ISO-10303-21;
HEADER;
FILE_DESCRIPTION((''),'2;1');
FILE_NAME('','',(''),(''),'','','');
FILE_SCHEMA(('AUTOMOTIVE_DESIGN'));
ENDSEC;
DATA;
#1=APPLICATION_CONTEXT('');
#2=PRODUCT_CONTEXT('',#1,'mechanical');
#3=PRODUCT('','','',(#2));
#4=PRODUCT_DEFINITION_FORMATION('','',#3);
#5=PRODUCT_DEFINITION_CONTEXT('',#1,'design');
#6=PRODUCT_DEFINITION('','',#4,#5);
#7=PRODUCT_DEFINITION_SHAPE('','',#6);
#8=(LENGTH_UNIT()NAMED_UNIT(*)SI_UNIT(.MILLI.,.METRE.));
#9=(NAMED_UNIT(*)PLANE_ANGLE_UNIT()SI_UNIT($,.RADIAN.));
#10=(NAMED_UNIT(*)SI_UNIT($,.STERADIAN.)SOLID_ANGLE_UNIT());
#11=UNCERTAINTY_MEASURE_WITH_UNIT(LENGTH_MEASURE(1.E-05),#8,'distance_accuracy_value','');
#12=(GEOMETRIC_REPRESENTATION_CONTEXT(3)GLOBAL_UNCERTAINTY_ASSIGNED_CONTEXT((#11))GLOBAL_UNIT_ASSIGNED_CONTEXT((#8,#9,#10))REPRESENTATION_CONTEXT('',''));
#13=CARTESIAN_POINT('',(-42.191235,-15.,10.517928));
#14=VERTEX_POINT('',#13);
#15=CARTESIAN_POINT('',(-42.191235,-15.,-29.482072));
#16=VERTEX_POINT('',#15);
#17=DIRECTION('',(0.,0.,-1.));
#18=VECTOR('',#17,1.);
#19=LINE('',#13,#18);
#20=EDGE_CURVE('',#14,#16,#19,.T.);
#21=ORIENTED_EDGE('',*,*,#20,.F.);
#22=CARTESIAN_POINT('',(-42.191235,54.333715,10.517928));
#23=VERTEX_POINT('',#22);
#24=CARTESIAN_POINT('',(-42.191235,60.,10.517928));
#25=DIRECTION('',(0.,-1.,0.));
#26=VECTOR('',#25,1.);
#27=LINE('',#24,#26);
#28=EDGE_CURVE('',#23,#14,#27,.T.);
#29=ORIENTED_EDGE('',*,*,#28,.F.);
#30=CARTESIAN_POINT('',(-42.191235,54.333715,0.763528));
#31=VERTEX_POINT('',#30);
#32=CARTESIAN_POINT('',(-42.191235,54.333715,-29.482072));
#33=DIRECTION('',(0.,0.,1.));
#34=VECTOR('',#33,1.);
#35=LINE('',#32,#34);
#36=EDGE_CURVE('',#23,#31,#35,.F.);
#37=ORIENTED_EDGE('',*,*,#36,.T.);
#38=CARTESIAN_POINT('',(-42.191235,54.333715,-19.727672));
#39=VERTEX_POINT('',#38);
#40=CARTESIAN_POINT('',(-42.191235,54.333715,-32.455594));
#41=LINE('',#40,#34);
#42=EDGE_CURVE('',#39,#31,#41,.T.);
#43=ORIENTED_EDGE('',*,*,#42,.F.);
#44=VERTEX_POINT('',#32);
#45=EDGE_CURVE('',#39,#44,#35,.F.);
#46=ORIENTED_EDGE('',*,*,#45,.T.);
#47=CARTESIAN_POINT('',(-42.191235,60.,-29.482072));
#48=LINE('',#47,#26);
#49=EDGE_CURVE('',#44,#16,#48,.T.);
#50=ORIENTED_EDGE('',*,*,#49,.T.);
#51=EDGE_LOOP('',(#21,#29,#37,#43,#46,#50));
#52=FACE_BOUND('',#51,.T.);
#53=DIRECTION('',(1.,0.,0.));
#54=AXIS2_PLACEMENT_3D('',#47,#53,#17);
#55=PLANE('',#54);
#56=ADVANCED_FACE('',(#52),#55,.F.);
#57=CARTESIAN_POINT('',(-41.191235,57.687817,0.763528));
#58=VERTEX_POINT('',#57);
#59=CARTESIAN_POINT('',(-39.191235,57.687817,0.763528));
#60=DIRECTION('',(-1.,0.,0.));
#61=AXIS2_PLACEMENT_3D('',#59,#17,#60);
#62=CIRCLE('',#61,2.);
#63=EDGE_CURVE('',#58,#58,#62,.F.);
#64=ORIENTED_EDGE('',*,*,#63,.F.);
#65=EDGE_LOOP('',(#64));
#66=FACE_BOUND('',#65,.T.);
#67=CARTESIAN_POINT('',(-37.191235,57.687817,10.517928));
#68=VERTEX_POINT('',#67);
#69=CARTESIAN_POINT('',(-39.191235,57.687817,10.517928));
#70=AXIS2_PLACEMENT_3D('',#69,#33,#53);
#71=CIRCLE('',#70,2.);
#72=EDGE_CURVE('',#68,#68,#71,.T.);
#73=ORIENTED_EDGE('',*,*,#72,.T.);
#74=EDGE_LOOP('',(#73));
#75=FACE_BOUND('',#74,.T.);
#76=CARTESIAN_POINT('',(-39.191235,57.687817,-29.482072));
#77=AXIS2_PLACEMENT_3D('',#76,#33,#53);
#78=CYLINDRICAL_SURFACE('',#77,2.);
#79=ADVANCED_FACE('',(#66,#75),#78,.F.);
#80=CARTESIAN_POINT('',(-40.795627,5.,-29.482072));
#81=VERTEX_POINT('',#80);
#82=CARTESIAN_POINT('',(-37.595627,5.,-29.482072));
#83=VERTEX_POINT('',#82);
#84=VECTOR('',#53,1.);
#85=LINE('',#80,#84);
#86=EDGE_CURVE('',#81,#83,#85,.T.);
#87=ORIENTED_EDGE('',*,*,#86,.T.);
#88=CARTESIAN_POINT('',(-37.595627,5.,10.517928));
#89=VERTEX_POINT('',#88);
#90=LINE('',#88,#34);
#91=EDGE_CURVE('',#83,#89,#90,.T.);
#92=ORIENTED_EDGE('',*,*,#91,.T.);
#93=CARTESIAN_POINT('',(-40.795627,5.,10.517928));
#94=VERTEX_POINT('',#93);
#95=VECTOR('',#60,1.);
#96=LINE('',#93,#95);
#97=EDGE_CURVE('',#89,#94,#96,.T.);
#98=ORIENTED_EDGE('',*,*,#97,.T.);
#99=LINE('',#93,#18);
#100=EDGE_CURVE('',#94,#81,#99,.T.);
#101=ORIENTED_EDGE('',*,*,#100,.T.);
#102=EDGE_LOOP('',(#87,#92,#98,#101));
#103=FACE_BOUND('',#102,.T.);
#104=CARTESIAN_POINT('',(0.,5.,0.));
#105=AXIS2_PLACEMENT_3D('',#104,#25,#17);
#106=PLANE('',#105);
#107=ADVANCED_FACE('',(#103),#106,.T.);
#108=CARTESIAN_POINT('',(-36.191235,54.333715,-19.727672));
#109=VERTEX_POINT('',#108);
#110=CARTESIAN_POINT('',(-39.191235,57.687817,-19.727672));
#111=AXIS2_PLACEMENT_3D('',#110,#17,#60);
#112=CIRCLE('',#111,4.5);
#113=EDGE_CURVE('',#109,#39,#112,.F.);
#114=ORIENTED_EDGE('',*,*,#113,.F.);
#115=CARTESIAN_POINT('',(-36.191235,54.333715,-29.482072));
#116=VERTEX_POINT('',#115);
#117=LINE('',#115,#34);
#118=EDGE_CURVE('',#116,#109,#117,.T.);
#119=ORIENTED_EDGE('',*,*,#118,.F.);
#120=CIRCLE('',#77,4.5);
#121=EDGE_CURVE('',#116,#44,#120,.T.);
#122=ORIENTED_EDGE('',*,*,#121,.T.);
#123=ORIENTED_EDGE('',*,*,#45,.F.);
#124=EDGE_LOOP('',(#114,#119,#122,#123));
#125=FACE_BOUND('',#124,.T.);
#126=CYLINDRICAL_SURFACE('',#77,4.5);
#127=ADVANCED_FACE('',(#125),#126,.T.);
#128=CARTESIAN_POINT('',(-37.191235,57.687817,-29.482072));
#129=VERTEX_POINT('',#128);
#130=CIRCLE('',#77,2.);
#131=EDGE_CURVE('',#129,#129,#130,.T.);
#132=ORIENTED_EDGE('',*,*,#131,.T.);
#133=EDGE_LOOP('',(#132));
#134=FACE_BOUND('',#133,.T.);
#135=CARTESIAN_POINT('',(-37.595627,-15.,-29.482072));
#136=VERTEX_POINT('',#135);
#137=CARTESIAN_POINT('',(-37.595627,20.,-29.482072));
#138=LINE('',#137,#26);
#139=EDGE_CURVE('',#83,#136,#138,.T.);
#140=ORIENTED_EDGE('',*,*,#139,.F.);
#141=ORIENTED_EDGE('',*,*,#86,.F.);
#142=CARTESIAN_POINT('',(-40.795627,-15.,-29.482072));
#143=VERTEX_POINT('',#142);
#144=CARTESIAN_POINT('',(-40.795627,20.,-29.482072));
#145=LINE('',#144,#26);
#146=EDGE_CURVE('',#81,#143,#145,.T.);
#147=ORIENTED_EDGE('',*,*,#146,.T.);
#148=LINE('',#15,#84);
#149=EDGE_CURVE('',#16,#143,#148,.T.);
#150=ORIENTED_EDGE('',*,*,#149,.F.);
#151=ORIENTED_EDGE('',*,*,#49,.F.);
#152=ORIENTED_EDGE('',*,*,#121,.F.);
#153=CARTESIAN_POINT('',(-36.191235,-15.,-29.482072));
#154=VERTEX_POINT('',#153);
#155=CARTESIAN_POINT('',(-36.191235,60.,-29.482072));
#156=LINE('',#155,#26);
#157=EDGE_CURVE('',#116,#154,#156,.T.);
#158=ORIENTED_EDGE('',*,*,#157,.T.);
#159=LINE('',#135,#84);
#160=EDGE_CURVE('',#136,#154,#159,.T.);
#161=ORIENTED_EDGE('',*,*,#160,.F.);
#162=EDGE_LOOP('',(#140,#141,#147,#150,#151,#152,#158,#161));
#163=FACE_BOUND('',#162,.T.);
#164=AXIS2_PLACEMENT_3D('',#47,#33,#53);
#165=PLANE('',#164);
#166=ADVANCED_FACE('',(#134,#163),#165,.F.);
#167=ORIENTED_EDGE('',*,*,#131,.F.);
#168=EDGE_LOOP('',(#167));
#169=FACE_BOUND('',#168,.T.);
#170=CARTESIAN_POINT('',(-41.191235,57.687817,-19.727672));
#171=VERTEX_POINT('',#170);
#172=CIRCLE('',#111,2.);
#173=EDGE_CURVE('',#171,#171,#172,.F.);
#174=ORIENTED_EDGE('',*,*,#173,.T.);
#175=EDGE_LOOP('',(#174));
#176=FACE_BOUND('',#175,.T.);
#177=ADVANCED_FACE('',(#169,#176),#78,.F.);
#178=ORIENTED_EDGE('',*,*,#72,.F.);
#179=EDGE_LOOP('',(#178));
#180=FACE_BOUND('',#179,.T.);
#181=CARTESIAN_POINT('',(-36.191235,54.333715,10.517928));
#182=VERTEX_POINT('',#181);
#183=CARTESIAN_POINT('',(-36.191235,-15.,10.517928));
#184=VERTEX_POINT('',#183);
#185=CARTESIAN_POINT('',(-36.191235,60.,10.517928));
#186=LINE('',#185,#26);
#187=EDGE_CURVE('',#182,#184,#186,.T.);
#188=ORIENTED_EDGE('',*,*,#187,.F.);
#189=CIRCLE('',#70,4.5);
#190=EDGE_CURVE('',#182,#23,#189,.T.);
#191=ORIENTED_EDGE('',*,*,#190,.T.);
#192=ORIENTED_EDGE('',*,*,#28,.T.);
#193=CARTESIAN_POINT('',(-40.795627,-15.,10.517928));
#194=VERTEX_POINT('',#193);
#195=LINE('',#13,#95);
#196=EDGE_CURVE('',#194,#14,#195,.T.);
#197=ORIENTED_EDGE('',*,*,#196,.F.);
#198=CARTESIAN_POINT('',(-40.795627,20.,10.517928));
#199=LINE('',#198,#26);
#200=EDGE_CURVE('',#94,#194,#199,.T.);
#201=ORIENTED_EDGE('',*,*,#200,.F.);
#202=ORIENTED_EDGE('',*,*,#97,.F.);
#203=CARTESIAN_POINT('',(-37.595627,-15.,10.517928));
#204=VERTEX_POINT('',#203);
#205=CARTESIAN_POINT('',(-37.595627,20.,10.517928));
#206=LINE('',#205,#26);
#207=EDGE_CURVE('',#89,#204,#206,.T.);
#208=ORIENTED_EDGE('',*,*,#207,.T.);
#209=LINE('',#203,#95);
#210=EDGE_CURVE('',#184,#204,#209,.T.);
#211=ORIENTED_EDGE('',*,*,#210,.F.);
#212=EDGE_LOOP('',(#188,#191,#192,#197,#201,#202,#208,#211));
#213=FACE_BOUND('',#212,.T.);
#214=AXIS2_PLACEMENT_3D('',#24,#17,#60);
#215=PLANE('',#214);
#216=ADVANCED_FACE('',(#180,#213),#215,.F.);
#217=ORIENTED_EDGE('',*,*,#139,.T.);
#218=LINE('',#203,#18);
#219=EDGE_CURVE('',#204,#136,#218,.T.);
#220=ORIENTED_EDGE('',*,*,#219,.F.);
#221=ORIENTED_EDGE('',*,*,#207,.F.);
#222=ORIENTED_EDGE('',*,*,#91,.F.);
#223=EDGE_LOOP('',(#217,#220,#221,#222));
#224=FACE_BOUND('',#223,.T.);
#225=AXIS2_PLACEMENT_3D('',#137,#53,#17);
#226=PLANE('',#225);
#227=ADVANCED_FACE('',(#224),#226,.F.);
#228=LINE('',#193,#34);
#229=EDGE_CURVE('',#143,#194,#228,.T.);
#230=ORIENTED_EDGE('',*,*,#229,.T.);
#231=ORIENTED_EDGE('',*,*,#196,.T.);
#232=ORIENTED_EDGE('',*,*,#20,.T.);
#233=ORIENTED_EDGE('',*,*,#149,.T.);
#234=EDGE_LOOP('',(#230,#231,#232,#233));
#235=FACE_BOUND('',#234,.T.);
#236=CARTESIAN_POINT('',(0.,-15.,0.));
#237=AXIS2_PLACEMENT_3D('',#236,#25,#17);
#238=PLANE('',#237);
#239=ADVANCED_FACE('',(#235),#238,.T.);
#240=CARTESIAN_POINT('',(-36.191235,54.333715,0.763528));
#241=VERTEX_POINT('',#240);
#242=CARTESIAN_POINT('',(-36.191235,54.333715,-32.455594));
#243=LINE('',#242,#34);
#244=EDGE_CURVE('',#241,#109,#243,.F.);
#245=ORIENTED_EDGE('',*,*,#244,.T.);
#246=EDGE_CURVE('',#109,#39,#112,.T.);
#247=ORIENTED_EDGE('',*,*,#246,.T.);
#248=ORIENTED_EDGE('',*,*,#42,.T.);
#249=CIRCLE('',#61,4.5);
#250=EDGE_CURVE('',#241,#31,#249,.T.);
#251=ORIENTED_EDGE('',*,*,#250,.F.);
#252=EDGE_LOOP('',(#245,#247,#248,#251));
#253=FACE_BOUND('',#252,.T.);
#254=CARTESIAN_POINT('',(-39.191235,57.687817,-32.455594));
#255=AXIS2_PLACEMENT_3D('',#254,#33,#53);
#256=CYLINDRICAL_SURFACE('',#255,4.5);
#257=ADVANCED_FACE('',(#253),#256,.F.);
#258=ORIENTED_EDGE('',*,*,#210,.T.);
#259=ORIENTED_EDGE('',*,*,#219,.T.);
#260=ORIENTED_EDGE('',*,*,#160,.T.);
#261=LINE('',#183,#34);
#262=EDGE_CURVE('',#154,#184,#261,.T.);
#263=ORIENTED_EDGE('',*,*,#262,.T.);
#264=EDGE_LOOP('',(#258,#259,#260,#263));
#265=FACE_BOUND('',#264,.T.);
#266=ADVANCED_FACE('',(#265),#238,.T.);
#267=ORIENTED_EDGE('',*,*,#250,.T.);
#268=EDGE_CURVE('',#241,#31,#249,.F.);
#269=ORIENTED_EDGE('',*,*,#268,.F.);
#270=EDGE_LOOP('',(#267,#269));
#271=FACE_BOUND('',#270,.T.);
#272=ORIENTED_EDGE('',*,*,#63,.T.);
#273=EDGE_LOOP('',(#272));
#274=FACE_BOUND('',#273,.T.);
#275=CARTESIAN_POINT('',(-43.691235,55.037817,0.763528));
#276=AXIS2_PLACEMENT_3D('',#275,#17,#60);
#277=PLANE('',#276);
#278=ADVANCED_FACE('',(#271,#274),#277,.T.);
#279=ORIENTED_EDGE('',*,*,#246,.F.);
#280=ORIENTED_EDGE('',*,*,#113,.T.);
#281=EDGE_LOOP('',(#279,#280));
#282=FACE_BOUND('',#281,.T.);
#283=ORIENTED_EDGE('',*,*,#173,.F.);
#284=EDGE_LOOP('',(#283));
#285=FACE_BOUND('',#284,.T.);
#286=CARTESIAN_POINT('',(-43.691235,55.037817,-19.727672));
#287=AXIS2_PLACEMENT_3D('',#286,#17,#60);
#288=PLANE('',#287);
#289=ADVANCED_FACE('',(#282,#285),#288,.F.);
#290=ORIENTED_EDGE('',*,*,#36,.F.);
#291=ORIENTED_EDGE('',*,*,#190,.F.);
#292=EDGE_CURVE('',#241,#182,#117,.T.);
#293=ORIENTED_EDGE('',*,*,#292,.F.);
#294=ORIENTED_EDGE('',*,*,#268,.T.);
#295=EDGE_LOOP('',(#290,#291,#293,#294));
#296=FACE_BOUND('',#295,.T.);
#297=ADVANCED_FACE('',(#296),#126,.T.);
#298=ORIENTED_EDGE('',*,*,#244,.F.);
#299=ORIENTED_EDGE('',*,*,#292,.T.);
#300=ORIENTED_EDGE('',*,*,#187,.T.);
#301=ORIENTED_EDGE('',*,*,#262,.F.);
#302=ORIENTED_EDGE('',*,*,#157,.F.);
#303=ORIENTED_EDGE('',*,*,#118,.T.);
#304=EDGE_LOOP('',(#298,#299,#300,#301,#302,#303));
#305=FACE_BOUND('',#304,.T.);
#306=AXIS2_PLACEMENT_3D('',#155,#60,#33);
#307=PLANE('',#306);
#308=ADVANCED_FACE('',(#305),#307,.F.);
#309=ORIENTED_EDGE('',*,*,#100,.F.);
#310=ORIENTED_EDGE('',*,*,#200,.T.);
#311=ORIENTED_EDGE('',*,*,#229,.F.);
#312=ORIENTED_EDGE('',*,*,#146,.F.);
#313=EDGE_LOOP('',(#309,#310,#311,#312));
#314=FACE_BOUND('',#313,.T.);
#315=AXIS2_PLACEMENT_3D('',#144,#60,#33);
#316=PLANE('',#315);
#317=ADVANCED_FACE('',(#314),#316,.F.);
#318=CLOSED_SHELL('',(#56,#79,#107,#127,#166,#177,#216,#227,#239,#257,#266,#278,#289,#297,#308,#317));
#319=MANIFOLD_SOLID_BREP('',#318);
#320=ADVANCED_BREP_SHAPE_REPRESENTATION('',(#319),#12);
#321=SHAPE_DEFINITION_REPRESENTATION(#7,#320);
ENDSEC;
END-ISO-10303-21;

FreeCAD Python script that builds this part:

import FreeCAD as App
import Part
import Sketcher
Q = App.Units.Quantity

doc = App.newDocument("Part")
body = doc.addObject("PartDesign::Body", "Body")

# Sketch on XZ plane
sketch1 = body.newObject("Sketcher::SketchObject", "Sketch")
sketch1.AttachmentSupport = (doc.getObject("XZ_Plane"), [""])
sketch1.MapMode = "FlatFace"
sketch1.addGeometry([
    Part.LineSegment(App.Vector(-42, -29, 0), App.Vector(-42, 11, 0)),
    Part.LineSegment(App.Vector(-42, 11, 0), App.Vector(-36, 11, 0)),
    Part.LineSegment(App.Vector(-36, 11, 0), App.Vector(-36, -29, 0)),
    Part.LineSegment(App.Vector(-36, -29, 0), App.Vector(-42, -29, 0)),
], False)
sketch1.addConstraint([
    Sketcher.Constraint("Coincident", 0, 2, 1, 1),
    Sketcher.Constraint("Coincident", 1, 2, 2, 1),
    Sketcher.Constraint("Coincident", 2, 2, 3, 1),
    Sketcher.Constraint("Coincident", 3, 2, 0, 1),
    Sketcher.Constraint("Vertical", 0),
    Sketcher.Constraint("Horizontal", 1),
    Sketcher.Constraint("Vertical", 2),
    Sketcher.Constraint("Horizontal", 3),
    Sketcher.Constraint("DistanceX", 1, 1, 1, 2, Q("6 mm")),
    Sketcher.Constraint("DistanceY", 0, 1, 0, 2, Q("40 mm")),
    Sketcher.Constraint("DistanceY", -1, 1, 0, 2, Q("10.517928 mm")),
    Sketcher.Constraint("DistanceX", 0, 2, -1, 1, Q("42.191235 mm")),
])
pad1 = body.newObject("PartDesign::Pad", "Pad")
pad1.Profile = sketch1
pad1.Length = 60
pad1.Reversed = True

# Sketch on XZ plane
sketch2 = body.newObject("Sketcher::SketchObject", "Sketch001")
sketch2.AttachmentSupport = (doc.getObject("XZ_Plane"), [""])
sketch2.MapMode = "FlatFace"
sketch2.addGeometry([
    Part.LineSegment(App.Vector(-40.8, 10.5, 0), App.Vector(-40.8, -29.5, 0)),
    Part.LineSegment(App.Vector(-40.8, -29.5, 0), App.Vector(-37.6, -29.5, 0)),
    Part.LineSegment(App.Vector(-37.6, -29.5, 0), App.Vector(-37.6, 10.5, 0)),
    Part.LineSegment(App.Vector(-37.6, 10.5, 0), App.Vector(-40.8, 10.5, 0)),
], False)
sketch2.addConstraint([
    Sketcher.Constraint("Coincident", 0, 2, 1, 1),
    Sketcher.Constraint("Coincident", 1, 2, 2, 1),
    Sketcher.Constraint("Coincident", 2, 2, 3, 1),
    Sketcher.Constraint("Coincident", 3, 2, 0, 1),
    Sketcher.Constraint("Vertical", 0),
    Sketcher.Constraint("Horizontal", 1),
    Sketcher.Constraint("Vertical", 2),
    Sketcher.Constraint("Horizontal", 3),
    Sketcher.Constraint("DistanceY", 0, 2, 0, 1, Q("40 mm")),
    Sketcher.Constraint("DistanceX", 1, 1, 1, 2, Q("3.2 mm")),
    Sketcher.Constraint("DistanceY", 0, 2, -1, 1, Q("29.482072 mm")),
    Sketcher.Constraint("DistanceX", 0, 2, -1, 1, Q("40.795627 mm")),
])
pocket1 = body.newObject("PartDesign::Pocket", "Pocket")
pocket1.Profile = sketch2
pocket1.Length = 20

# Sketch on XY plane
sketch3 = body.newObject("Sketcher::SketchObject", "Sketch002")
sketch3.AttachmentSupport = (doc.getObject("XY_Plane"), [""])
sketch3.MapMode = "FlatFace"
sketch3.AttachmentOffset = App.Placement(App.Vector(0, 0, 10.517928), App.Rotation())
sketch3.addGeometry(Part.Circle(App.Vector(-39.2, 57.7, 0), App.Vector(0, 0, 1), 2), False)
sketch3.addConstraint([
    Sketcher.Constraint("Diameter", 0, Q("4 mm")),
    Sketcher.Constraint("DistanceX", 0, 3, -1, 1, Q("39.191235 mm")),
    Sketcher.Constraint("DistanceY", -1, 1, 0, 3, Q("57.687817 mm")),
])
pocket2 = body.newObject("PartDesign::Pocket", "Pocket001")
pocket2.Profile = sketch3
pocket2.Type = "ThroughAll"
pocket2.Midplane = True

# Sketch on XY plane
sketch4 = body.newObject("Sketcher::SketchObject", "Sketch003")
sketch4.AttachmentSupport = (doc.getObject("XY_Plane"), [""])
sketch4.MapMode = "FlatFace"
sketch4.AttachmentOffset = App.Placement(App.Vector(0, 0, 10.517928), App.Rotation())
sketch4.addGeometry(Part.Circle(App.Vector(-39.2, 57.7, 0), App.Vector(0, 0, 1), 4.5), False)
sketch4.addConstraint([
    Sketcher.Constraint("Diameter", 0, Q("9 mm")),
    Sketcher.Constraint("DistanceX", 0, 3, -1, 1, Q("39.191235 mm")),
    Sketcher.Constraint("DistanceY", -1, 1, 0, 3, Q("57.687817 mm")),
])
pad2 = body.newObject("PartDesign::Pad", "Pad001")
pad2.Profile = sketch4
pad2.Length = 40
pad2.Reversed = True

# Sketch on XY plane
sketch5 = body.newObject("Sketcher::SketchObject", "Sketch004")
sketch5.AttachmentSupport = (doc.getObject("XY_Plane"), [""])
sketch5.MapMode = "FlatFace"
sketch5.AttachmentOffset = App.Placement(App.Vector(0, 0, 10.517928), App.Rotation())
sketch5.addGeometry(Part.Circle(App.Vector(-39.2, 57.7, 0), App.Vector(0, 0, 1), 2), False)
sketch5.addConstraint([
    Sketcher.Constraint("Diameter", 0, Q("4 mm")),
    Sketcher.Constraint("DistanceX", 0, 3, -1, 1, Q("39.191235 mm")),
    Sketcher.Constraint("DistanceY", -1, 1, 0, 3, Q("57.687817 mm")),
])
pocket3 = body.newObject("PartDesign::Pocket", "Pocket002")
pocket3.Profile = sketch5
pocket3.Length = 40

# Sketch on YZ plane
sketch6 = body.newObject("Sketcher::SketchObject", "Sketch005")
sketch6.AttachmentSupport = (doc.getObject("YZ_Plane"), [""])
sketch6.MapMode = "FlatFace"
sketch6.AttachmentOffset = App.Placement(App.Vector(0, 0, -36.191235), App.Rotation())
sketch6.addGeometry([
    Part.LineSegment(App.Vector(62, 1, 0), App.Vector(55, 1, 0)),
    Part.LineSegment(App.Vector(55, 1, 0), App.Vector(55, -20, 0)),
    Part.LineSegment(App.Vector(55, -20, 0), App.Vector(62, -20, 0)),
    Part.LineSegment(App.Vector(62, -20, 0), App.Vector(62, 1, 0)),
], False)
sketch6.addConstraint([
    Sketcher.Constraint("Coincident", 0, 2, 1, 1),
    Sketcher.Constraint("Coincident", 1, 2, 2, 1),
    Sketcher.Constraint("Coincident", 2, 2, 3, 1),
    Sketcher.Constraint("Coincident", 3, 2, 0, 1),
    Sketcher.Constraint("Horizontal", 0),
    Sketcher.Constraint("Vertical", 1),
    Sketcher.Constraint("Horizontal", 2),
    Sketcher.Constraint("Vertical", 3),
    Sketcher.Constraint("DistanceX", 0, 2, 0, 1, Q("6.65 mm")),
    Sketcher.Constraint("DistanceY", 1, 2, 1, 1, Q("20.4912 mm")),
    Sketcher.Constraint("DistanceY", -1, 1, 0, 2, Q("0.763528 mm")),
    Sketcher.Constraint("DistanceX", -1, 1, 0, 2, Q("55.037817 mm")),
])
pocket4 = body.newObject("PartDesign::Pocket", "Pocket003")
pocket4.Profile = sketch6
pocket4.Type = "ThroughAll"
pocket4.Midplane = True

# Sketch on XY plane
sketch7 = body.newObject("Sketcher::SketchObject", "Sketch006")
sketch7.AttachmentSupport = (doc.getObject("XY_Plane"), [""])
sketch7.MapMode = "FlatFace"
sketch7.AttachmentOffset = App.Placement(App.Vector(0, 0, 0.763528), App.Rotation())
sketch7.addGeometry(Part.Circle(App.Vector(-39.2, 57.7, 0), App.Vector(0, 0, 1), 4.5), False)
sketch7.addConstraint([
    Sketcher.Constraint("Diameter", 0, Q("9 mm")),
    Sketcher.Constraint("DistanceX", 0, 3, -1, 1, Q("39.191235 mm")),
    Sketcher.Constraint("DistanceY", -1, 1, 0, 3, Q("57.687817 mm")),
])
pocket5 = body.newObject("PartDesign::Pocket", "Pocket004")
pocket5.Profile = sketch7
pocket5.Length = 20.4912

# Sketch on XZ plane
sketch8 = body.newObject("Sketcher::SketchObject", "Sketch007")
sketch8.AttachmentSupport = (doc.getObject("XZ_Plane"), [""])
sketch8.MapMode = "FlatFace"
sketch8.addGeometry([
    Part.LineSegment(App.Vector(-42.2, 10.5, 0), App.Vector(-42.2, -29.5, 0)),  # 0
    Part.LineSegment(App.Vector(-42.2, -29.5, 0), App.Vector(-40.8, -29.5, 0)),  # 1
    Part.LineSegment(App.Vector(-40.8, -29.5, 0), App.Vector(-40.8, 10.5, 0)),  # 2
    Part.LineSegment(App.Vector(-40.8, 10.5, 0), App.Vector(-42.2, 10.5, 0)),  # 3
    Part.LineSegment(App.Vector(-37.6, 10.5, 0), App.Vector(-37.6, -29.5, 0)),  # 4
    Part.LineSegment(App.Vector(-37.6, -29.5, 0), App.Vector(-36.2, -29.5, 0)),  # 5
    Part.LineSegment(App.Vector(-36.2, -29.5, 0), App.Vector(-36.2, 10.5, 0)),  # 6
    Part.LineSegment(App.Vector(-36.2, 10.5, 0), App.Vector(-37.6, 10.5, 0)),  # 7
], False)
sketch8.addConstraint([
    Sketcher.Constraint("Coincident", 0, 2, 1, 1),
    Sketcher.Constraint("Coincident", 1, 2, 2, 1),
    Sketcher.Constraint("Coincident", 2, 2, 3, 1),
    Sketcher.Constraint("Coincident", 3, 2, 0, 1),
    Sketcher.Constraint("Coincident", 4, 2, 5, 1),
    Sketcher.Constraint("Coincident", 5, 2, 6, 1),
    Sketcher.Constraint("Coincident", 6, 2, 7, 1),
    Sketcher.Constraint("Coincident", 7, 2, 4, 1),
    Sketcher.Constraint("Vertical", 0),
    Sketcher.Constraint("Horizontal", 1),
    Sketcher.Constraint("Vertical", 2),
    Sketcher.Constraint("Horizontal", 3),
    Sketcher.Constraint("Vertical", 4),
    Sketcher.Constraint("Horizontal", 5),
    Sketcher.Constraint("Vertical", 6),
    Sketcher.Constraint("Horizontal", 7),
    Sketcher.Constraint("Horizontal", 1, 2, 4, 2),
    Sketcher.Constraint("Horizontal", 3, 2, 6, 2),
    Sketcher.Constraint("DistanceY", 0, 2, 0, 1, Q("40 mm")),
    Sketcher.Constraint("DistanceX", 0, 2, 5, 2, Q("6 mm")),
    Sketcher.Constraint("DistanceX", 1, 2, 4, 2, Q("3.2 mm")),
    Sketcher.Constraint("DistanceX", 1, 1, 1, 2, Q("1.395608 mm")),
    Sketcher.Constraint("DistanceY", 0, 2, -1, 1, Q("29.482072 mm")),
    Sketcher.Constraint("DistanceX", 0, 2, -1, 1, Q("42.191235 mm")),
])
pad3 = body.newObject("PartDesign::Pad", "Pad002")
pad3.Profile = sketch8
pad3.Length = 15

# Sketch on XZ plane
sketch9 = body.newObject("Sketcher::SketchObject", "Sketch008")
sketch9.AttachmentSupport = (doc.getObject("XZ_Plane"), [""])
sketch9.MapMode = "FlatFace"
sketch9.AttachmentOffset = App.Placement(App.Vector(0, 0, -20), App.Rotation())
sketch9.addGeometry([
    Part.LineSegment(App.Vector(-40.8, 10.5, 0), App.Vector(-40.8, -29.5, 0)),
    Part.LineSegment(App.Vector(-40.8, -29.5, 0), App.Vector(-37.6, -29.5, 0)),
    Part.LineSegment(App.Vector(-37.6, -29.5, 0), App.Vector(-37.6, 10.5, 0)),
    Part.LineSegment(App.Vector(-37.6, 10.5, 0), App.Vector(-40.8, 10.5, 0)),
], False)
sketch9.addConstraint([
    Sketcher.Constraint("Coincident", 0, 2, 1, 1),
    Sketcher.Constraint("Coincident", 1, 2, 2, 1),
    Sketcher.Constraint("Coincident", 2, 2, 3, 1),
    Sketcher.Constraint("Coincident", 3, 2, 0, 1),
    Sketcher.Constraint("Vertical", 0),
    Sketcher.Constraint("Horizontal", 1),
    Sketcher.Constraint("Vertical", 2),
    Sketcher.Constraint("Horizontal", 3),
    Sketcher.Constraint("DistanceY", 0, 2, 0, 1, Q("40 mm")),
    Sketcher.Constraint("DistanceX", 1, 1, 1, 2, Q("3.2 mm")),
    Sketcher.Constraint("DistanceY", 0, 2, -1, 1, Q("29.482072 mm")),
    Sketcher.Constraint("DistanceX", 0, 2, -1, 1, Q("40.795627 mm")),
])
pad4 = body.newObject("PartDesign::Pad", "Pad003")
pad4.Profile = sketch9
pad4.Length = 15

doc.recompute()
